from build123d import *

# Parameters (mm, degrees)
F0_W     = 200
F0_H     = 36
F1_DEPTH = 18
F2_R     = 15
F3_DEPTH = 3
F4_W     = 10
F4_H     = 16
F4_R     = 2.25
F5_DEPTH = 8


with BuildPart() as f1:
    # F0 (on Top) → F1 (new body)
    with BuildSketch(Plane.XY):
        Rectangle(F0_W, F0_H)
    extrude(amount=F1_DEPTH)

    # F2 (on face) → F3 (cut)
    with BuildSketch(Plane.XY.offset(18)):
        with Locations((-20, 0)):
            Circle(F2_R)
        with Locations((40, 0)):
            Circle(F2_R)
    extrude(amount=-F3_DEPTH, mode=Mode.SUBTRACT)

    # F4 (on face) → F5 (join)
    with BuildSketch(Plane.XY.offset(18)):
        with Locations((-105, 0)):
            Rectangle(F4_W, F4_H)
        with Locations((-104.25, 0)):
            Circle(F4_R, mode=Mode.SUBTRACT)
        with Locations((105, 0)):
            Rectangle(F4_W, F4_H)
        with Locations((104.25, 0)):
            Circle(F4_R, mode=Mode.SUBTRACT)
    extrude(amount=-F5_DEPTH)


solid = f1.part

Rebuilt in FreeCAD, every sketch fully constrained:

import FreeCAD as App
import Part
import Sketcher

doc = App.newDocument("Part")
params = doc.addObject("Spreadsheet::Sheet", "Params")
for row, (alias, value) in enumerate([
    ("sketch1_width", "200 mm"),
    ("sketch1_height", "36 mm"),
    ("pad1_length", "18 mm"),
    ("sketch2_diameter", "30 mm"),
    ("pocket1_length", "3 mm"),
    ("sketch3_diameter", "4.5 mm"),
    ("sketch3_width", "10 mm"),
    ("sketch3_height", "16 mm"),
    ("pad2_length", "8 mm"),
], start=1):
    params.set(f"A{row}", alias)
    params.set(f"B{row}", "=" + value)
    params.setAlias(f"B{row}", alias)

body = doc.addObject("PartDesign::Body", "Body")

sketch1 = body.newObject("Sketcher::SketchObject", "Sketch")
sketch1.AttachmentSupport = (doc.getObject("XY_Plane"), [""])
sketch1.MapMode = "FlatFace"
sketch1.addGeometry(Part.LineSegment(App.Vector(-100, 18, 0), App.Vector(-100, -18, 0)), False)
sketch1.addGeometry(Part.LineSegment(App.Vector(-100, -18, 0), App.Vector(100, -18, 0)), False)
sketch1.addGeometry(Part.LineSegment(App.Vector(100, -18, 0), App.Vector(100, 18, 0)), False)
sketch1.addGeometry(Part.LineSegment(App.Vector(100, 18, 0), App.Vector(-100, 18, 0)), False)
sketch1.addConstraint(Sketcher.Constraint("Coincident", 0, 2, 1, 1))
sketch1.addConstraint(Sketcher.Constraint("Coincident", 1, 2, 2, 1))
sketch1.addConstraint(Sketcher.Constraint("Coincident", 2, 2, 3, 1))
sketch1.addConstraint(Sketcher.Constraint("Coincident", 3, 2, 0, 1))
sketch1.addConstraint(Sketcher.Constraint("Vertical", 0))
sketch1.addConstraint(Sketcher.Constraint("Horizontal", 1))
sketch1.addConstraint(Sketcher.Constraint("Vertical", 2))
sketch1.addConstraint(Sketcher.Constraint("Horizontal", 3))
sketch1.addConstraint(Sketcher.Constraint("Symmetric", 0, 2, 2, 2, -1, 1))
sketch1.addConstraint(Sketcher.Constraint("DistanceX", 1, 1, 1, 2, 200.0))
sketch1.addConstraint(Sketcher.Constraint("DistanceY", 0, 2, 0, 1, 36.0))
sketch1.setExpression("Constraints[9]", "Params.sketch1_width")
sketch1.setExpression("Constraints[10]", "Params.sketch1_height")
pad1 = body.newObject("PartDesign::Pad", "Pad")
pad1.Profile = sketch1
pad1.setExpression("Length", "Params.pad1_length")

sketch2 = body.newObject("Sketcher::SketchObject", "Sketch001")
sketch2.AttachmentSupport = (doc.getObject("XY_Plane"), [""])
sketch2.MapMode = "FlatFace"
sketch2.AttachmentOffset = App.Placement(App.Vector(0, 0, 18), App.Rotation())
sketch2.addGeometry(Part.Circle(App.Vector(-20, 0, 0), App.Vector(0, 0, 1), 15), False)
sketch2.addGeometry(Part.Circle(App.Vector(40, 0, 0), App.Vector(0, 0, 1), 15), False)
sketch2.addConstraint(Sketcher.Constraint("Equal", 0, 1))
sketch2.addConstraint(Sketcher.Constraint("PointOnObject", 0, 3, -1))
sketch2.addConstraint(Sketcher.Constraint("PointOnObject", 1, 3, -1))
sketch2.addConstraint(Sketcher.Constraint("Diameter", 0, 30.0))
sketch2.addConstraint(Sketcher.Constraint("DistanceX", 0, 3, -1, 1, 20.0))
sketch2.addConstraint(Sketcher.Constraint("DistanceX", -1, 1, 1, 3, 40.0))
sketch2.setExpression("Constraints[3]", "Params.sketch2_diameter")
pocket1 = body.newObject("PartDesign::Pocket", "Pocket")
pocket1.Profile = sketch2
pocket1.setExpression("Length", "Params.pocket1_length")

sketch3 = body.newObject("Sketcher::SketchObject", "Sketch002")
sketch3.AttachmentSupport = (doc.getObject("XY_Plane"), [""])
sketch3.MapMode = "FlatFace"
sketch3.AttachmentOffset = App.Placement(App.Vector(0, 0, 18), App.Rotation())
sketch3.addGeometry(Part.LineSegment(App.Vector(-110, 8, 0), App.Vector(-110, -8, 0)), False)
sketch3.addGeometry(Part.LineSegment(App.Vector(-110, -8, 0), App.Vector(-100, -8, 0)), False)
sketch3.addGeometry(Part.LineSegment(App.Vector(-100, -8, 0), App.Vector(-100, 8, 0)), False)
sketch3.addGeometry(Part.LineSegment(App.Vector(-100, 8, 0), App.Vector(-110, 8, 0)), False)
sketch3.addGeometry(Part.Circle(App.Vector(-104.2, 0, 0), App.Vector(0, 0, 1), 2.2), False)
sketch3.addGeometry(Part.LineSegment(App.Vector(100, 8, 0), App.Vector(100, -8, 0)), False)
sketch3.addGeometry(Part.LineSegment(App.Vector(100, -8, 0), App.Vector(110, -8, 0)), False)
sketch3.addGeometry(Part.LineSegment(App.Vector(110, -8, 0), App.Vector(110, 8, 0)), False)
sketch3.addGeometry(Part.LineSegment(App.Vector(110, 8, 0), App.Vector(100, 8, 0)), False)
sketch3.addGeometry(Part.Circle(App.Vector(104.2, 0, 0), App.Vector(0, 0, 1), 2.2), False)
sketch3.addConstraint(Sketcher.Constraint("Coincident", 0, 2, 1, 1))
sketch3.addConstraint(Sketcher.Constraint("Coincident", 1, 2, 2, 1))
sketch3.addConstraint(Sketcher.Constraint("Coincident", 2, 2, 3, 1))
sketch3.addConstraint(Sketcher.Constraint("Coincident", 3, 2, 0, 1))
sketch3.addConstraint(Sketcher.Constraint("Coincident", 5, 2, 6, 1))
sketch3.addConstraint(Sketcher.Constraint("Coincident", 6, 2, 7, 1))
sketch3.addConstraint(Sketcher.Constraint("Coincident", 7, 2, 8, 1))
sketch3.addConstraint(Sketcher.Constraint("Coincident", 8, 2, 5, 1))
sketch3.addConstraint(Sketcher.Constraint("Vertical", 0))
sketch3.addConstraint(Sketcher.Constraint("Horizontal", 1))
sketch3.addConstraint(Sketcher.Constraint("Vertical", 2))
sketch3.addConstraint(Sketcher.Constraint("Horizontal", 3))
sketch3.addConstraint(Sketcher.Constraint("Vertical", 5))
sketch3.addConstraint(Sketcher.Constraint("Horizontal", 6))
sketch3.addConstraint(Sketcher.Constraint("Vertical", 7))
sketch3.addConstraint(Sketcher.Constraint("Horizontal", 8))
sketch3.addConstraint(Sketcher.Constraint("Equal", 4, 9))
sketch3.addConstraint(Sketcher.Constraint("Symmetric", 4, 3, 9, 3, -1, 1))
sketch3.addConstraint(Sketcher.Constraint("Symmetric", 2, 2, 5, 2, -1, 1))
sketch3.addConstraint(Sketcher.Constraint("Symmetric", 0, 2, 7, 2, -1, 1))
sketch3.addConstraint(Sketcher.Constraint("PointOnObject", 4, 3, -1))
sketch3.addConstraint(Sketcher.Constraint("Horizontal", 1, 2, 5, 2))
sketch3.addConstraint(Sketcher.Constraint("Diameter", 4, 4.5))
sketch3.addConstraint(Sketcher.Constraint("DistanceX", 1, 1, 1, 2, 10.0))
sketch3.addConstraint(Sketcher.Constraint("DistanceY", 0, 2, 0, 1, 16.0))
sketch3.addConstraint(Sketcher.Constraint("DistanceX", 0, 2, -1, 1, 110.0))
sketch3.addConstraint(Sketcher.Constraint("DistanceX", 4, 3, 9, 3, 208.5))
sketch3.setExpression("Constraints[22]", "Params.sketch3_diameter")
sketch3.setExpression("Constraints[23]", "Params.sketch3_width")
sketch3.setExpression("Constraints[24]", "Params.sketch3_height")
pad2 = body.newObject("PartDesign::Pad", "Pad001")
pad2.Profile = sketch3
pad2.setExpression("Length", "Params.pad2_length")
pad2.Reversed = True

doc.recompute()
